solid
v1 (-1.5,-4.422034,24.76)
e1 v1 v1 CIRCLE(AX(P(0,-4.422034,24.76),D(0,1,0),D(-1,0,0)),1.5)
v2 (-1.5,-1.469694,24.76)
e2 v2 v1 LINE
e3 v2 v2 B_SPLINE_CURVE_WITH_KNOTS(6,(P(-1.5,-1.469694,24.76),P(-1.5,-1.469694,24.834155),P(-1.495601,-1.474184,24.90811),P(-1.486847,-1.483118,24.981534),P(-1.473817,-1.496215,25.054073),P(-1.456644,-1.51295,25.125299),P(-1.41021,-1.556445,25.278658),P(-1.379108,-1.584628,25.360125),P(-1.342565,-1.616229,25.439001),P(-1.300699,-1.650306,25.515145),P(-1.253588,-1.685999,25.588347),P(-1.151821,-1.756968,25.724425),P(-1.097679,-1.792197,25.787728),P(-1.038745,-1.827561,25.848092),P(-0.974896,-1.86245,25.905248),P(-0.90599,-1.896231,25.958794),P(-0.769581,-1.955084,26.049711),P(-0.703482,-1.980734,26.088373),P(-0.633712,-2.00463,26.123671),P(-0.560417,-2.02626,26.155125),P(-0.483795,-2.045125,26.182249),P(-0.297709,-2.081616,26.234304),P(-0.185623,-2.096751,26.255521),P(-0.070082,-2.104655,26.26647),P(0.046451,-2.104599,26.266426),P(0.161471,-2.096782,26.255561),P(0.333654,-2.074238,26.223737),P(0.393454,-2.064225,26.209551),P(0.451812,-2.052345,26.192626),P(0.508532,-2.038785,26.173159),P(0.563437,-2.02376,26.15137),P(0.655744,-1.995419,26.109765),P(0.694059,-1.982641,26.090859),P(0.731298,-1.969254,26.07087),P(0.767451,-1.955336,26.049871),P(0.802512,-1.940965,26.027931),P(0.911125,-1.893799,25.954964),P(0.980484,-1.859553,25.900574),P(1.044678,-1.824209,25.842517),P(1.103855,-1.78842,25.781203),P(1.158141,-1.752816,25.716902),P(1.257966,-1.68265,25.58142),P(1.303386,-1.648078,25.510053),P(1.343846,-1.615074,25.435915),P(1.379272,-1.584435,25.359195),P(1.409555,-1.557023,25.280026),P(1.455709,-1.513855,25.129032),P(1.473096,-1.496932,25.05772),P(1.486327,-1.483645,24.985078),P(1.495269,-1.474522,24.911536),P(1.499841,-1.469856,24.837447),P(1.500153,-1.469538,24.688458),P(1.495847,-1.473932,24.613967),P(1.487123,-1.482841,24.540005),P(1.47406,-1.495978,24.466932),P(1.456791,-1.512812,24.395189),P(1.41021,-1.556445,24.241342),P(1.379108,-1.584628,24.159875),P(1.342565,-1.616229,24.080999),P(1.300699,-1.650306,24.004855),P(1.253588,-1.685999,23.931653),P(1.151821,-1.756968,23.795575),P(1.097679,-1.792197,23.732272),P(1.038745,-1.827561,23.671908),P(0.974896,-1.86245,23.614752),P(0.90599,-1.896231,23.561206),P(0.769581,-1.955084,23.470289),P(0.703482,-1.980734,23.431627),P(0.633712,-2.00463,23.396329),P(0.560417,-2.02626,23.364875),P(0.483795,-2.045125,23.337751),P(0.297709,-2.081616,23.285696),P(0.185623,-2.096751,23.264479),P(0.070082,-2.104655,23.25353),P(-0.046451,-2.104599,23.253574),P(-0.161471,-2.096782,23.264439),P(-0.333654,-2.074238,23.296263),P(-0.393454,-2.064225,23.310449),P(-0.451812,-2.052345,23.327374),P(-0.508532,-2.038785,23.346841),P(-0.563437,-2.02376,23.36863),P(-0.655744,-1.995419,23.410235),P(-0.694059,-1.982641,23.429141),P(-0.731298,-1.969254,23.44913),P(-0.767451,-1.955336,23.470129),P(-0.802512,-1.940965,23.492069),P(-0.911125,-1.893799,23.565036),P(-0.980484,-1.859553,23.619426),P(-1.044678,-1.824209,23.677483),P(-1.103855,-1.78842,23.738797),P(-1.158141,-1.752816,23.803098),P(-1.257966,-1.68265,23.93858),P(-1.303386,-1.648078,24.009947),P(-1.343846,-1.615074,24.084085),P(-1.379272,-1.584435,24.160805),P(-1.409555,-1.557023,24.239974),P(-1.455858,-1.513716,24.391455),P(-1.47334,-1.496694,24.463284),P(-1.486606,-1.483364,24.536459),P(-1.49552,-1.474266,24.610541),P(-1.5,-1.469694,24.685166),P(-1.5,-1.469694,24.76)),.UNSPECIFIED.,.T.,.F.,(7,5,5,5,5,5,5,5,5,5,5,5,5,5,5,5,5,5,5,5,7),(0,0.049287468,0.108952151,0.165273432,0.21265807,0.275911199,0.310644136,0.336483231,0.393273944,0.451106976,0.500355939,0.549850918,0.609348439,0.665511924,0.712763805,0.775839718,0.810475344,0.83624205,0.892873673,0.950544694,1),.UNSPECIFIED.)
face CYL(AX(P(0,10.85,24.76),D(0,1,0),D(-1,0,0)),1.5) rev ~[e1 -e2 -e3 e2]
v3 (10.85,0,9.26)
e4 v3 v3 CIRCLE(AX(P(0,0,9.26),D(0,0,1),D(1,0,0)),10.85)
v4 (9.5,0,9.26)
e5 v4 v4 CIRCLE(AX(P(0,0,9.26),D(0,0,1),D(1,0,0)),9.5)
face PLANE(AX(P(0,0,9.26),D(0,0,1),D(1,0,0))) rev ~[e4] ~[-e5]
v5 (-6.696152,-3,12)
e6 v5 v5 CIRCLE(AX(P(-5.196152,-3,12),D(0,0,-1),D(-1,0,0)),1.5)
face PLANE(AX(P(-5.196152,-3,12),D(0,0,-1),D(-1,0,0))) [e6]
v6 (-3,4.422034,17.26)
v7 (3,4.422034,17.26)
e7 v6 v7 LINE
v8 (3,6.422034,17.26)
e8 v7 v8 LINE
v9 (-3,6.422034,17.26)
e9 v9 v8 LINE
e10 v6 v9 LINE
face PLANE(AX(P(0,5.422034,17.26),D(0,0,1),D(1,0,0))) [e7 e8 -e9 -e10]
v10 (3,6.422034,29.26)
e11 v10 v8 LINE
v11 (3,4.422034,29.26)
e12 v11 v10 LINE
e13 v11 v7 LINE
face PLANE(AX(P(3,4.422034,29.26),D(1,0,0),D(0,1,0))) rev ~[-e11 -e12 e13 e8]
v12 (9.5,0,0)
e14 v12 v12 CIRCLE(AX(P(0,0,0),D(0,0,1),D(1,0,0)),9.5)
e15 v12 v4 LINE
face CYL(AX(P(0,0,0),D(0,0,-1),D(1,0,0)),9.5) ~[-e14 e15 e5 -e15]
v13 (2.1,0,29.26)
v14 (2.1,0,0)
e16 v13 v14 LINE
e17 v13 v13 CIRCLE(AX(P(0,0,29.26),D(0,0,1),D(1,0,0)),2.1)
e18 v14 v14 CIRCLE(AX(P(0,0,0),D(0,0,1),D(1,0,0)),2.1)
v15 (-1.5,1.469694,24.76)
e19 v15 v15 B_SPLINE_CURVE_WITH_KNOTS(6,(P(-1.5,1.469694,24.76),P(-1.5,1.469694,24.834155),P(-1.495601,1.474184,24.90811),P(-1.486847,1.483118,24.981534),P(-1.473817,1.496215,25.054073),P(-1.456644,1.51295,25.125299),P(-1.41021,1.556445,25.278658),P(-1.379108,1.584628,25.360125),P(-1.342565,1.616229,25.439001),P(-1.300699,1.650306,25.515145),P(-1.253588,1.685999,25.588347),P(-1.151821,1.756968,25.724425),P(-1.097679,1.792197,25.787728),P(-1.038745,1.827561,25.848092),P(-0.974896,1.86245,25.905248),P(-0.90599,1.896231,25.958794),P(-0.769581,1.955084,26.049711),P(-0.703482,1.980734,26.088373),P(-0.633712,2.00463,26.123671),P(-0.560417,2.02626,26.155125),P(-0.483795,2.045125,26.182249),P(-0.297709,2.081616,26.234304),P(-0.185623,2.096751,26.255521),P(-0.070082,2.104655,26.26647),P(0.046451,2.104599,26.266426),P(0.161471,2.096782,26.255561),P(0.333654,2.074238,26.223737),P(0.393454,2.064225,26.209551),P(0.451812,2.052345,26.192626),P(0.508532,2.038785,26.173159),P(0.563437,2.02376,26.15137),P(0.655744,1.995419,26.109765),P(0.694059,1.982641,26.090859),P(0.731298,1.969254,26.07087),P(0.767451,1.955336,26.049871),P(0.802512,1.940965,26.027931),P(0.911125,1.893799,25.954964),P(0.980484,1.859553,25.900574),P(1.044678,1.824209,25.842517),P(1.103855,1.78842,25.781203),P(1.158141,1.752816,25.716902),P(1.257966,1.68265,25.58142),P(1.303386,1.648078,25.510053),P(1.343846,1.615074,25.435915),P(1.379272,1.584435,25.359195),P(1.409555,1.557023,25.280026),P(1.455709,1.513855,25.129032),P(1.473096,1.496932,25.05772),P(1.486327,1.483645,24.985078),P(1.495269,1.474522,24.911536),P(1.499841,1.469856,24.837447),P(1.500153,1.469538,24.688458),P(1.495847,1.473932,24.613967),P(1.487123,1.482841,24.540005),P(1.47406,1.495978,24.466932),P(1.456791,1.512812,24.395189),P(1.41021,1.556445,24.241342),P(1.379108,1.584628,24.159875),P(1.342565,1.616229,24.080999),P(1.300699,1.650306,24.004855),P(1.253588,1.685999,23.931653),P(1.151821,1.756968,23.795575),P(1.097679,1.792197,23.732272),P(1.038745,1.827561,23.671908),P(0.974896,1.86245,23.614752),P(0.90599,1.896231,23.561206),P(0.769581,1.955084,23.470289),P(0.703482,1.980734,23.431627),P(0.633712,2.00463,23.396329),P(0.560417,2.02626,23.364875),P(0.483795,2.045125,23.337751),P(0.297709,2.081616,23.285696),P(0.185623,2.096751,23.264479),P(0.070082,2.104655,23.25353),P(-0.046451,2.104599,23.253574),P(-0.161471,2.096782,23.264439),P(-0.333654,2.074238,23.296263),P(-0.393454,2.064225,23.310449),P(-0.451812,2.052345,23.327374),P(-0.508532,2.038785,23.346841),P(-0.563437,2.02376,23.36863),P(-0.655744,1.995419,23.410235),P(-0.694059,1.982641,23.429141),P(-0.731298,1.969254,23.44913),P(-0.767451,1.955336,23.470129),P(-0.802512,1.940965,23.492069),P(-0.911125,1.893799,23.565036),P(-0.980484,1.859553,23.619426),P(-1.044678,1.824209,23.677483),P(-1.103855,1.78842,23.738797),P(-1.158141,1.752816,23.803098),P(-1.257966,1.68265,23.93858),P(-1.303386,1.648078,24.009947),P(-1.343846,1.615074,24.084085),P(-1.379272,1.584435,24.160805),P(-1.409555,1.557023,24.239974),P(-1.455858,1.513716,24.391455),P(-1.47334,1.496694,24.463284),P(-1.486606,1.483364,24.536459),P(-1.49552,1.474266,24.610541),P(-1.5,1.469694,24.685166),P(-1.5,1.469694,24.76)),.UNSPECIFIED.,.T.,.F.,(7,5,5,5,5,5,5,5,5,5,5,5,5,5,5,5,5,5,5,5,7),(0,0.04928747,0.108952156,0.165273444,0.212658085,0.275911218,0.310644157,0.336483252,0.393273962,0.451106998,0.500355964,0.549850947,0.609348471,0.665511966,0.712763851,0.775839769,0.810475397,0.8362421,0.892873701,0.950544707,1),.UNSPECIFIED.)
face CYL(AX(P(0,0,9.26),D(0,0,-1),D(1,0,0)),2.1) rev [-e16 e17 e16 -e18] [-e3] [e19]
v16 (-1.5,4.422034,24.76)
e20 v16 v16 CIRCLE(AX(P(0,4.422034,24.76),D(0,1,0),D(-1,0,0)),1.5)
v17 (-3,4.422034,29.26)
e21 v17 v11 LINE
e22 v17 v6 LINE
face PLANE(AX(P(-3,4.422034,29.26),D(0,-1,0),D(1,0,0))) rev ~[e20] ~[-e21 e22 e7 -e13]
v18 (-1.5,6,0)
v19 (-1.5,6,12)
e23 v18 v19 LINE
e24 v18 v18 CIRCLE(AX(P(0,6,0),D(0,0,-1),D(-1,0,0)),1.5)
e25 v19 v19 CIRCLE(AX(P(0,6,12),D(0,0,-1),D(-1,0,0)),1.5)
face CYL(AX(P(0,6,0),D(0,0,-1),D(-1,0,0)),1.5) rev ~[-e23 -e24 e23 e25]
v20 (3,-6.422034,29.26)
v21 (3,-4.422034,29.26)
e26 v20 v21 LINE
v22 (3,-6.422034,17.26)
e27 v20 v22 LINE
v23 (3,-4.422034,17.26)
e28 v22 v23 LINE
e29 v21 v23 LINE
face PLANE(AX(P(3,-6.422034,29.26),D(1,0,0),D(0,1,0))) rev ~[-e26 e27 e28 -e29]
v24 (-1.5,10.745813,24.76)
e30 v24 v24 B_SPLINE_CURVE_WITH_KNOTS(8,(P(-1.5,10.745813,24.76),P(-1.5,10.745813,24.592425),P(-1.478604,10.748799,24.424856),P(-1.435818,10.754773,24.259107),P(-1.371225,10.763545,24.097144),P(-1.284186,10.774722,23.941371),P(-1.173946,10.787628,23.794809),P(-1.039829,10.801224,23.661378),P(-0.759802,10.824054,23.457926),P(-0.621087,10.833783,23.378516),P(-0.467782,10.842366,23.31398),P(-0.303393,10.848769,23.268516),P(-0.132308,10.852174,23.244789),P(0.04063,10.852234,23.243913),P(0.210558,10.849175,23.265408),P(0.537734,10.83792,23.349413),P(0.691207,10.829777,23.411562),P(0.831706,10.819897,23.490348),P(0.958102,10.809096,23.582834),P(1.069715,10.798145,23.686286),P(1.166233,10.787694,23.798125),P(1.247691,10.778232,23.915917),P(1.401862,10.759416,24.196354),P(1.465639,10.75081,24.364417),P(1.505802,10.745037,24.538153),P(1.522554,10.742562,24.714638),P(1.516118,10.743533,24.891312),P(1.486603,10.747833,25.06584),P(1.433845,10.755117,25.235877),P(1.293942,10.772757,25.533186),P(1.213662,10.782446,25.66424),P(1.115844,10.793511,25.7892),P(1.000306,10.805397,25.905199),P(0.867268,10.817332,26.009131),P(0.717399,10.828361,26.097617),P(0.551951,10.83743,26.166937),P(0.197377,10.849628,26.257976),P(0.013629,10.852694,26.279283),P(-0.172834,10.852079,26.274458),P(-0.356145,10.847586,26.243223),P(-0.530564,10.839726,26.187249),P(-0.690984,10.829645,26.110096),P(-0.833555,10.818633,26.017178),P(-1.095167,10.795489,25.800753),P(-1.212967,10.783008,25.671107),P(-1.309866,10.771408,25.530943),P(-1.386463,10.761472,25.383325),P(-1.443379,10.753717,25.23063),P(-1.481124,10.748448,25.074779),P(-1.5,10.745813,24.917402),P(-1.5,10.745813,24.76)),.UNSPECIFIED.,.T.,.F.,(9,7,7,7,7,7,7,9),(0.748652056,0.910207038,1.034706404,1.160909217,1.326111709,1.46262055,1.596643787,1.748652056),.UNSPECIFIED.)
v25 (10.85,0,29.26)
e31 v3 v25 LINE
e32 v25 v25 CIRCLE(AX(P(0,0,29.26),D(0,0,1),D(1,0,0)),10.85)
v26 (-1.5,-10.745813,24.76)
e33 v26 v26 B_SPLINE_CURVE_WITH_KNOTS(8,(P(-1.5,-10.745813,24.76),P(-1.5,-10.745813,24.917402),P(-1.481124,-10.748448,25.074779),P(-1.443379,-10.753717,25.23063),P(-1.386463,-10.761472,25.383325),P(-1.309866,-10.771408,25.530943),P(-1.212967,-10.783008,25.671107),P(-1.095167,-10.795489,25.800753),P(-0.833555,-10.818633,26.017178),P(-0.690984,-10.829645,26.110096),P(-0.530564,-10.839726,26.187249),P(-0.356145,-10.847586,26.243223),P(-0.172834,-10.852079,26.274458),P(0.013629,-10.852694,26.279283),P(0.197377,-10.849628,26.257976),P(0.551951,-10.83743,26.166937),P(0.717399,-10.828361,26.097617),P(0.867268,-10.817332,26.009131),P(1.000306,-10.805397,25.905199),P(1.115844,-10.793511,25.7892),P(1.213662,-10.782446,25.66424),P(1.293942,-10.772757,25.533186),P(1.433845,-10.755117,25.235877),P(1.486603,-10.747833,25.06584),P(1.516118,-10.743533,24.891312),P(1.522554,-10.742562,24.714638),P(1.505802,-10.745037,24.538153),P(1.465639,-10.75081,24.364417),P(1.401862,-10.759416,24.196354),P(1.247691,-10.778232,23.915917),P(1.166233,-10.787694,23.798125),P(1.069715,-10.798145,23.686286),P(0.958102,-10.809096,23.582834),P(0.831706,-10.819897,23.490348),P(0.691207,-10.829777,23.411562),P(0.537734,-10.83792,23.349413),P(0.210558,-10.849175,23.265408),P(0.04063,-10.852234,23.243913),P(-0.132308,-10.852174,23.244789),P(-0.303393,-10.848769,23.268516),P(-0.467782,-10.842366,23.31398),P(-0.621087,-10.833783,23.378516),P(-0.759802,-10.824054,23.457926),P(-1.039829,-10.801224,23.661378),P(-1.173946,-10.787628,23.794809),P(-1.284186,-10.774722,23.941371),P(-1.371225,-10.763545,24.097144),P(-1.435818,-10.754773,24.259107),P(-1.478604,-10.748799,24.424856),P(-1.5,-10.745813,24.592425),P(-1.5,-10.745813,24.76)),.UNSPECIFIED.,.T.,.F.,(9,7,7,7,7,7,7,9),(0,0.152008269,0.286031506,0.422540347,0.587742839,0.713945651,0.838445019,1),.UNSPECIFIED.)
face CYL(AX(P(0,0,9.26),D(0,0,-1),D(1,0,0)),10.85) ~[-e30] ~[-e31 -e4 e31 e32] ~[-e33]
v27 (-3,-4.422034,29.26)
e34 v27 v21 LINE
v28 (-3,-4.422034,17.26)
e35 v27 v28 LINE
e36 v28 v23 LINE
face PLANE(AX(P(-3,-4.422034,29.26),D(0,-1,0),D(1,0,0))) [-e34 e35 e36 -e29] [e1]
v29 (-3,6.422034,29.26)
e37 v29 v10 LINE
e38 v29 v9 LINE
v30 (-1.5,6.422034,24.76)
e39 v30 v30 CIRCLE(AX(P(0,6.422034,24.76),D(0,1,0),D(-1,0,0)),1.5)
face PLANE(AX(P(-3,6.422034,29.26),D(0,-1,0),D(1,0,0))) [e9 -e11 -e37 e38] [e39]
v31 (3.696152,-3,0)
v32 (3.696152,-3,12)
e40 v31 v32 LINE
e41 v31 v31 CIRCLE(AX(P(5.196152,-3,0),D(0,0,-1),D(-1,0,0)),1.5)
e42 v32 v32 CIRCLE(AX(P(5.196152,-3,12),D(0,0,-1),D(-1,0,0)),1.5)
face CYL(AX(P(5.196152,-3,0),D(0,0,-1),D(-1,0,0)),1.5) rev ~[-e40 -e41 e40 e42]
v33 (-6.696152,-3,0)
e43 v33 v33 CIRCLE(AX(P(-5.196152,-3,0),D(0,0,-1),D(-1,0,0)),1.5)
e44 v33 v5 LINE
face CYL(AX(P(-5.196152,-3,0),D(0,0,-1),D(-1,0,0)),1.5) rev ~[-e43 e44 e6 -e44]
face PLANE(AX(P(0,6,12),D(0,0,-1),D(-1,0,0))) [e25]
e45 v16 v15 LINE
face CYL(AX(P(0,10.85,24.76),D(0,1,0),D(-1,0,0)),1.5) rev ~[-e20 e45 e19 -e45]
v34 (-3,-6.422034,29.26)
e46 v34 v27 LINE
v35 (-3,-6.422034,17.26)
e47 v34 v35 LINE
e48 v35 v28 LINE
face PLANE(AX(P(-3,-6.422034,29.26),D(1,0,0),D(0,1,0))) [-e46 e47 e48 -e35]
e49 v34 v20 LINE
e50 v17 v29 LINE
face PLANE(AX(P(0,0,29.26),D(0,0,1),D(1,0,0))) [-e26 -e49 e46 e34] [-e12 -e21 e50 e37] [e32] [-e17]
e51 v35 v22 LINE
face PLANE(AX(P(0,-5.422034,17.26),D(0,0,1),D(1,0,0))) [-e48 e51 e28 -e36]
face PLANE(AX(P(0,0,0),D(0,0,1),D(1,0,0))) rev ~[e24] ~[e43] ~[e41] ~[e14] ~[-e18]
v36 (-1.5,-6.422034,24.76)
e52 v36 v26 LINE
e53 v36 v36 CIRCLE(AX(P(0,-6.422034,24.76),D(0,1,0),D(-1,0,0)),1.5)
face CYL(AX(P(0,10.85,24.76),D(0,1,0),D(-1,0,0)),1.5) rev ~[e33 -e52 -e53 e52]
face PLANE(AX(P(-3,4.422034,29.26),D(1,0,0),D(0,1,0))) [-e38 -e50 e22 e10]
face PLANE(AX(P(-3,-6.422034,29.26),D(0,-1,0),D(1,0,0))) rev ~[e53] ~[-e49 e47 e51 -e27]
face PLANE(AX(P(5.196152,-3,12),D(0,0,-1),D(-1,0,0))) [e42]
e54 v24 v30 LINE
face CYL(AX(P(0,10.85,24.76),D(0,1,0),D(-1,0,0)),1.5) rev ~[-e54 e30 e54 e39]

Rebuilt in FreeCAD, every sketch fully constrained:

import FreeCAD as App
import Part
import Sketcher
from FreeCAD import Vector
Q = App.Units.Quantity

doc = App.newDocument("Part")
body = doc.addObject("PartDesign::Body", "Body")

sketch1 = body.newObject("Sketcher::SketchObject", "Sketch")
sketch1.AttachmentSupport = (doc.getObject("XY_Plane"), [""])
sketch1.MapMode = "FlatFace"
sketch1.addGeometry(Part.Circle(Vector(0, 0, 0), Vector(0, 0, 1), 9.5), False)
sketch1.addGeometry(Part.Circle(Vector(0, 0, 0), Vector(0, 0, 1), 2.1), False)
sketch1.addConstraint(Sketcher.Constraint("Coincident", 0, 3, -1, 1))
sketch1.addConstraint(Sketcher.Constraint("Coincident", 1, 3, -1, 1))
sketch1.addConstraint(Sketcher.Constraint("Diameter", 0, Q("19 mm")))
sketch1.addConstraint(Sketcher.Constraint("Diameter", 1, Q("4.2 mm")))
pad1 = body.newObject("PartDesign::Pad", "Pad")
pad1.Profile = sketch1
pad1.Length = 9.26

sketch2 = body.newObject("Sketcher::SketchObject", "Sketch001")
sketch2.AttachmentSupport = (doc.getObject("XY_Plane"), [""])
sketch2.MapMode = "FlatFace"
sketch2.AttachmentOffset = App.Placement(Vector(0, 0, 9.26), App.Rotation())
sketch2.addGeometry(Part.Circle(Vector(0, 0, 0), Vector(0, 0, 1), 10.8), False)
sketch2.addGeometry(Part.Circle(Vector(0, 0, 0), Vector(0, 0, 1), 2.1), False)
sketch2.addConstraint(Sketcher.Constraint("Coincident", 0, 3, -1, 1))
sketch2.addConstraint(Sketcher.Constraint("Coincident", 1, 3, -1, 1))
sketch2.addConstraint(Sketcher.Constraint("Diameter", 0, Q("21.7 mm")))
sketch2.addConstraint(Sketcher.Constraint("Diameter", 1, Q("4.2 mm")))
pad2 = body.newObject("PartDesign::Pad", "Pad001")
pad2.Profile = sketch2
pad2.Length = 20

sketch3 = body.newObject("Sketcher::SketchObject", "Sketch002")
sketch3.AttachmentSupport = (doc.getObject("XY_Plane"), [""])
sketch3.MapMode = "FlatFace"
sketch3.AttachmentOffset = App.Placement(Vector(0, 0, 29.26), App.Rotation())
sketch3.addGeometry(Part.LineSegment(Vector(-3, 6.4, 0), Vector(-3, 4.4, 0)), False)
sketch3.addGeometry(Part.LineSegment(Vector(-3, 4.4, 0), Vector(3, 4.4, 0)), False)
sketch3.addGeometry(Part.LineSegment(Vector(3, 4.4, 0), Vector(3, 6.4, 0)), False)
sketch3.addGeometry(Part.LineSegment(Vector(3, 6.4, 0), Vector(-3, 6.4, 0)), False)
sketch3.addGeometry(Part.LineSegment(Vector(-3, -4.4, 0), Vector(-3, -6.4, 0)), False)
sketch3.addGeometry(Part.LineSegment(Vector(-3, -6.4, 0), Vector(3, -6.4, 0)), False)
sketch3.addGeometry(Part.LineSegment(Vector(3, -6.4, 0), Vector(3, -4.4, 0)), False)
sketch3.addGeometry(Part.LineSegment(Vector(3, -4.4, 0), Vector(-3, -4.4, 0)), False)
sketch3.addConstraint(Sketcher.Constraint("Coincident", 0, 2, 1, 1))
sketch3.addConstraint(Sketcher.Constraint("Coincident", 1, 2, 2, 1))
sketch3.addConstraint(Sketcher.Constraint("Coincident", 2, 2, 3, 1))
sketch3.addConstraint(Sketcher.Constraint("Coincident", 3, 2, 0, 1))
sketch3.addConstraint(Sketcher.Constraint("Coincident", 4, 2, 5, 1))
sketch3.addConstraint(Sketcher.Constraint("Coincident", 5, 2, 6, 1))
sketch3.addConstraint(Sketcher.Constraint("Coincident", 6, 2, 7, 1))
sketch3.addConstraint(Sketcher.Constraint("Coincident", 7, 2, 4, 1))
sketch3.addConstraint(Sketcher.Constraint("Vertical", 0))
sketch3.addConstraint(Sketcher.Constraint("Horizontal", 1))
sketch3.addConstraint(Sketcher.Constraint("Vertical", 2))
sketch3.addConstraint(Sketcher.Constraint("Horizontal", 3))
sketch3.addConstraint(Sketcher.Constraint("Vertical", 4))
sketch3.addConstraint(Sketcher.Constraint("Horizontal", 5))
sketch3.addConstraint(Sketcher.Constraint("Vertical", 6))
sketch3.addConstraint(Sketcher.Constraint("Horizontal", 7))
sketch3.addConstraint(Sketcher.Constraint("Symmetric", 2, 2, 4, 2, -1, 1))
sketch3.addConstraint(Sketcher.Constraint("Symmetric", 0, 2, 6, 2, -1, 1))
sketch3.addConstraint(Sketcher.Constraint("Vertical", 3, 2, 4, 2))
sketch3.addConstraint(Sketcher.Constraint("DistanceX", 1, 1, 1, 2, Q("6 mm")))
sketch3.addConstraint(Sketcher.Constraint("DistanceY", 0, 2, 0, 1, Q("2 mm")))
sketch3.addConstraint(Sketcher.Constraint("DistanceY", -1, 1, 0, 2, Q("4.422034 mm")))
pocket1 = body.newObject("PartDesign::Pocket", "Pocket")
pocket1.Profile = sketch3
pocket1.Length = 12

sketch4 = body.newObject("Sketcher::SketchObject", "Sketch003")
sketch4.AttachmentSupport = (doc.getObject("XZ_Plane"), [""])
sketch4.MapMode = "FlatFace"
sketch4.AttachmentOffset = App.Placement(Vector(0, 0, -10.85), App.Rotation())
sketch4.addGeometry(Part.Circle(Vector(0, 24.8, 0), Vector(0, 0, 1), 1.5), False)
sketch4.addConstraint(Sketcher.Constraint("PointOnObject", 0, 3, -2))
sketch4.addConstraint(Sketcher.Constraint("Diameter", 0, Q("3 mm")))
sketch4.addConstraint(Sketcher.Constraint("DistanceY", -1, 1, 0, 3, Q("24.76 mm")))
pocket2 = body.newObject("PartDesign::Pocket", "Pocket001")
pocket2.Profile = sketch4
pocket2.Type = "ThroughAll"
pocket2.Reversed = True

sketch5 = body.newObject("Sketcher::SketchObject", "Sketch004")
sketch5.AttachmentSupport = (doc.getObject("XY_Plane"), [""])
sketch5.MapMode = "FlatFace"
sketch5.addGeometry(Part.Circle(Vector(0, 6, 0), Vector(0, 0, 1), 1.5), False)
sketch5.addGeometry(Part.Circle(Vector(-5.2, -3, 0), Vector(0, 0, 1), 1.5), False)
sketch5.addGeometry(Part.Circle(Vector(5.2, -3, 0), Vector(0, 0, 1), 1.5), False)
sketch5.addConstraint(Sketcher.Constraint("Equal", 0, 1))
sketch5.addConstraint(Sketcher.Constraint("Equal", 1, 2))
sketch5.addConstraint(Sketcher.Constraint("Symmetric", 1, 3, 2, 3, -2))
sketch5.addConstraint(Sketcher.Constraint("PointOnObject", 0, 3, -2))
sketch5.addConstraint(Sketcher.Constraint("Diameter", 0, Q("3 mm")))
sketch5.addConstraint(Sketcher.Constraint("DistanceY", -1, 1, 0, 3, Q("6 mm")))
sketch5.addConstraint(Sketcher.Constraint("DistanceY", 1, 3, -1, 1, Q("3 mm")))
sketch5.addConstraint(Sketcher.Constraint("DistanceX", 1, 3, -1, 1, Q("5.196152 mm")))
pocket3 = body.newObject("PartDesign::Pocket", "Pocket002")
pocket3.Profile = sketch5
pocket3.Length = 12
pocket3.Reversed = True

doc.recompute()
